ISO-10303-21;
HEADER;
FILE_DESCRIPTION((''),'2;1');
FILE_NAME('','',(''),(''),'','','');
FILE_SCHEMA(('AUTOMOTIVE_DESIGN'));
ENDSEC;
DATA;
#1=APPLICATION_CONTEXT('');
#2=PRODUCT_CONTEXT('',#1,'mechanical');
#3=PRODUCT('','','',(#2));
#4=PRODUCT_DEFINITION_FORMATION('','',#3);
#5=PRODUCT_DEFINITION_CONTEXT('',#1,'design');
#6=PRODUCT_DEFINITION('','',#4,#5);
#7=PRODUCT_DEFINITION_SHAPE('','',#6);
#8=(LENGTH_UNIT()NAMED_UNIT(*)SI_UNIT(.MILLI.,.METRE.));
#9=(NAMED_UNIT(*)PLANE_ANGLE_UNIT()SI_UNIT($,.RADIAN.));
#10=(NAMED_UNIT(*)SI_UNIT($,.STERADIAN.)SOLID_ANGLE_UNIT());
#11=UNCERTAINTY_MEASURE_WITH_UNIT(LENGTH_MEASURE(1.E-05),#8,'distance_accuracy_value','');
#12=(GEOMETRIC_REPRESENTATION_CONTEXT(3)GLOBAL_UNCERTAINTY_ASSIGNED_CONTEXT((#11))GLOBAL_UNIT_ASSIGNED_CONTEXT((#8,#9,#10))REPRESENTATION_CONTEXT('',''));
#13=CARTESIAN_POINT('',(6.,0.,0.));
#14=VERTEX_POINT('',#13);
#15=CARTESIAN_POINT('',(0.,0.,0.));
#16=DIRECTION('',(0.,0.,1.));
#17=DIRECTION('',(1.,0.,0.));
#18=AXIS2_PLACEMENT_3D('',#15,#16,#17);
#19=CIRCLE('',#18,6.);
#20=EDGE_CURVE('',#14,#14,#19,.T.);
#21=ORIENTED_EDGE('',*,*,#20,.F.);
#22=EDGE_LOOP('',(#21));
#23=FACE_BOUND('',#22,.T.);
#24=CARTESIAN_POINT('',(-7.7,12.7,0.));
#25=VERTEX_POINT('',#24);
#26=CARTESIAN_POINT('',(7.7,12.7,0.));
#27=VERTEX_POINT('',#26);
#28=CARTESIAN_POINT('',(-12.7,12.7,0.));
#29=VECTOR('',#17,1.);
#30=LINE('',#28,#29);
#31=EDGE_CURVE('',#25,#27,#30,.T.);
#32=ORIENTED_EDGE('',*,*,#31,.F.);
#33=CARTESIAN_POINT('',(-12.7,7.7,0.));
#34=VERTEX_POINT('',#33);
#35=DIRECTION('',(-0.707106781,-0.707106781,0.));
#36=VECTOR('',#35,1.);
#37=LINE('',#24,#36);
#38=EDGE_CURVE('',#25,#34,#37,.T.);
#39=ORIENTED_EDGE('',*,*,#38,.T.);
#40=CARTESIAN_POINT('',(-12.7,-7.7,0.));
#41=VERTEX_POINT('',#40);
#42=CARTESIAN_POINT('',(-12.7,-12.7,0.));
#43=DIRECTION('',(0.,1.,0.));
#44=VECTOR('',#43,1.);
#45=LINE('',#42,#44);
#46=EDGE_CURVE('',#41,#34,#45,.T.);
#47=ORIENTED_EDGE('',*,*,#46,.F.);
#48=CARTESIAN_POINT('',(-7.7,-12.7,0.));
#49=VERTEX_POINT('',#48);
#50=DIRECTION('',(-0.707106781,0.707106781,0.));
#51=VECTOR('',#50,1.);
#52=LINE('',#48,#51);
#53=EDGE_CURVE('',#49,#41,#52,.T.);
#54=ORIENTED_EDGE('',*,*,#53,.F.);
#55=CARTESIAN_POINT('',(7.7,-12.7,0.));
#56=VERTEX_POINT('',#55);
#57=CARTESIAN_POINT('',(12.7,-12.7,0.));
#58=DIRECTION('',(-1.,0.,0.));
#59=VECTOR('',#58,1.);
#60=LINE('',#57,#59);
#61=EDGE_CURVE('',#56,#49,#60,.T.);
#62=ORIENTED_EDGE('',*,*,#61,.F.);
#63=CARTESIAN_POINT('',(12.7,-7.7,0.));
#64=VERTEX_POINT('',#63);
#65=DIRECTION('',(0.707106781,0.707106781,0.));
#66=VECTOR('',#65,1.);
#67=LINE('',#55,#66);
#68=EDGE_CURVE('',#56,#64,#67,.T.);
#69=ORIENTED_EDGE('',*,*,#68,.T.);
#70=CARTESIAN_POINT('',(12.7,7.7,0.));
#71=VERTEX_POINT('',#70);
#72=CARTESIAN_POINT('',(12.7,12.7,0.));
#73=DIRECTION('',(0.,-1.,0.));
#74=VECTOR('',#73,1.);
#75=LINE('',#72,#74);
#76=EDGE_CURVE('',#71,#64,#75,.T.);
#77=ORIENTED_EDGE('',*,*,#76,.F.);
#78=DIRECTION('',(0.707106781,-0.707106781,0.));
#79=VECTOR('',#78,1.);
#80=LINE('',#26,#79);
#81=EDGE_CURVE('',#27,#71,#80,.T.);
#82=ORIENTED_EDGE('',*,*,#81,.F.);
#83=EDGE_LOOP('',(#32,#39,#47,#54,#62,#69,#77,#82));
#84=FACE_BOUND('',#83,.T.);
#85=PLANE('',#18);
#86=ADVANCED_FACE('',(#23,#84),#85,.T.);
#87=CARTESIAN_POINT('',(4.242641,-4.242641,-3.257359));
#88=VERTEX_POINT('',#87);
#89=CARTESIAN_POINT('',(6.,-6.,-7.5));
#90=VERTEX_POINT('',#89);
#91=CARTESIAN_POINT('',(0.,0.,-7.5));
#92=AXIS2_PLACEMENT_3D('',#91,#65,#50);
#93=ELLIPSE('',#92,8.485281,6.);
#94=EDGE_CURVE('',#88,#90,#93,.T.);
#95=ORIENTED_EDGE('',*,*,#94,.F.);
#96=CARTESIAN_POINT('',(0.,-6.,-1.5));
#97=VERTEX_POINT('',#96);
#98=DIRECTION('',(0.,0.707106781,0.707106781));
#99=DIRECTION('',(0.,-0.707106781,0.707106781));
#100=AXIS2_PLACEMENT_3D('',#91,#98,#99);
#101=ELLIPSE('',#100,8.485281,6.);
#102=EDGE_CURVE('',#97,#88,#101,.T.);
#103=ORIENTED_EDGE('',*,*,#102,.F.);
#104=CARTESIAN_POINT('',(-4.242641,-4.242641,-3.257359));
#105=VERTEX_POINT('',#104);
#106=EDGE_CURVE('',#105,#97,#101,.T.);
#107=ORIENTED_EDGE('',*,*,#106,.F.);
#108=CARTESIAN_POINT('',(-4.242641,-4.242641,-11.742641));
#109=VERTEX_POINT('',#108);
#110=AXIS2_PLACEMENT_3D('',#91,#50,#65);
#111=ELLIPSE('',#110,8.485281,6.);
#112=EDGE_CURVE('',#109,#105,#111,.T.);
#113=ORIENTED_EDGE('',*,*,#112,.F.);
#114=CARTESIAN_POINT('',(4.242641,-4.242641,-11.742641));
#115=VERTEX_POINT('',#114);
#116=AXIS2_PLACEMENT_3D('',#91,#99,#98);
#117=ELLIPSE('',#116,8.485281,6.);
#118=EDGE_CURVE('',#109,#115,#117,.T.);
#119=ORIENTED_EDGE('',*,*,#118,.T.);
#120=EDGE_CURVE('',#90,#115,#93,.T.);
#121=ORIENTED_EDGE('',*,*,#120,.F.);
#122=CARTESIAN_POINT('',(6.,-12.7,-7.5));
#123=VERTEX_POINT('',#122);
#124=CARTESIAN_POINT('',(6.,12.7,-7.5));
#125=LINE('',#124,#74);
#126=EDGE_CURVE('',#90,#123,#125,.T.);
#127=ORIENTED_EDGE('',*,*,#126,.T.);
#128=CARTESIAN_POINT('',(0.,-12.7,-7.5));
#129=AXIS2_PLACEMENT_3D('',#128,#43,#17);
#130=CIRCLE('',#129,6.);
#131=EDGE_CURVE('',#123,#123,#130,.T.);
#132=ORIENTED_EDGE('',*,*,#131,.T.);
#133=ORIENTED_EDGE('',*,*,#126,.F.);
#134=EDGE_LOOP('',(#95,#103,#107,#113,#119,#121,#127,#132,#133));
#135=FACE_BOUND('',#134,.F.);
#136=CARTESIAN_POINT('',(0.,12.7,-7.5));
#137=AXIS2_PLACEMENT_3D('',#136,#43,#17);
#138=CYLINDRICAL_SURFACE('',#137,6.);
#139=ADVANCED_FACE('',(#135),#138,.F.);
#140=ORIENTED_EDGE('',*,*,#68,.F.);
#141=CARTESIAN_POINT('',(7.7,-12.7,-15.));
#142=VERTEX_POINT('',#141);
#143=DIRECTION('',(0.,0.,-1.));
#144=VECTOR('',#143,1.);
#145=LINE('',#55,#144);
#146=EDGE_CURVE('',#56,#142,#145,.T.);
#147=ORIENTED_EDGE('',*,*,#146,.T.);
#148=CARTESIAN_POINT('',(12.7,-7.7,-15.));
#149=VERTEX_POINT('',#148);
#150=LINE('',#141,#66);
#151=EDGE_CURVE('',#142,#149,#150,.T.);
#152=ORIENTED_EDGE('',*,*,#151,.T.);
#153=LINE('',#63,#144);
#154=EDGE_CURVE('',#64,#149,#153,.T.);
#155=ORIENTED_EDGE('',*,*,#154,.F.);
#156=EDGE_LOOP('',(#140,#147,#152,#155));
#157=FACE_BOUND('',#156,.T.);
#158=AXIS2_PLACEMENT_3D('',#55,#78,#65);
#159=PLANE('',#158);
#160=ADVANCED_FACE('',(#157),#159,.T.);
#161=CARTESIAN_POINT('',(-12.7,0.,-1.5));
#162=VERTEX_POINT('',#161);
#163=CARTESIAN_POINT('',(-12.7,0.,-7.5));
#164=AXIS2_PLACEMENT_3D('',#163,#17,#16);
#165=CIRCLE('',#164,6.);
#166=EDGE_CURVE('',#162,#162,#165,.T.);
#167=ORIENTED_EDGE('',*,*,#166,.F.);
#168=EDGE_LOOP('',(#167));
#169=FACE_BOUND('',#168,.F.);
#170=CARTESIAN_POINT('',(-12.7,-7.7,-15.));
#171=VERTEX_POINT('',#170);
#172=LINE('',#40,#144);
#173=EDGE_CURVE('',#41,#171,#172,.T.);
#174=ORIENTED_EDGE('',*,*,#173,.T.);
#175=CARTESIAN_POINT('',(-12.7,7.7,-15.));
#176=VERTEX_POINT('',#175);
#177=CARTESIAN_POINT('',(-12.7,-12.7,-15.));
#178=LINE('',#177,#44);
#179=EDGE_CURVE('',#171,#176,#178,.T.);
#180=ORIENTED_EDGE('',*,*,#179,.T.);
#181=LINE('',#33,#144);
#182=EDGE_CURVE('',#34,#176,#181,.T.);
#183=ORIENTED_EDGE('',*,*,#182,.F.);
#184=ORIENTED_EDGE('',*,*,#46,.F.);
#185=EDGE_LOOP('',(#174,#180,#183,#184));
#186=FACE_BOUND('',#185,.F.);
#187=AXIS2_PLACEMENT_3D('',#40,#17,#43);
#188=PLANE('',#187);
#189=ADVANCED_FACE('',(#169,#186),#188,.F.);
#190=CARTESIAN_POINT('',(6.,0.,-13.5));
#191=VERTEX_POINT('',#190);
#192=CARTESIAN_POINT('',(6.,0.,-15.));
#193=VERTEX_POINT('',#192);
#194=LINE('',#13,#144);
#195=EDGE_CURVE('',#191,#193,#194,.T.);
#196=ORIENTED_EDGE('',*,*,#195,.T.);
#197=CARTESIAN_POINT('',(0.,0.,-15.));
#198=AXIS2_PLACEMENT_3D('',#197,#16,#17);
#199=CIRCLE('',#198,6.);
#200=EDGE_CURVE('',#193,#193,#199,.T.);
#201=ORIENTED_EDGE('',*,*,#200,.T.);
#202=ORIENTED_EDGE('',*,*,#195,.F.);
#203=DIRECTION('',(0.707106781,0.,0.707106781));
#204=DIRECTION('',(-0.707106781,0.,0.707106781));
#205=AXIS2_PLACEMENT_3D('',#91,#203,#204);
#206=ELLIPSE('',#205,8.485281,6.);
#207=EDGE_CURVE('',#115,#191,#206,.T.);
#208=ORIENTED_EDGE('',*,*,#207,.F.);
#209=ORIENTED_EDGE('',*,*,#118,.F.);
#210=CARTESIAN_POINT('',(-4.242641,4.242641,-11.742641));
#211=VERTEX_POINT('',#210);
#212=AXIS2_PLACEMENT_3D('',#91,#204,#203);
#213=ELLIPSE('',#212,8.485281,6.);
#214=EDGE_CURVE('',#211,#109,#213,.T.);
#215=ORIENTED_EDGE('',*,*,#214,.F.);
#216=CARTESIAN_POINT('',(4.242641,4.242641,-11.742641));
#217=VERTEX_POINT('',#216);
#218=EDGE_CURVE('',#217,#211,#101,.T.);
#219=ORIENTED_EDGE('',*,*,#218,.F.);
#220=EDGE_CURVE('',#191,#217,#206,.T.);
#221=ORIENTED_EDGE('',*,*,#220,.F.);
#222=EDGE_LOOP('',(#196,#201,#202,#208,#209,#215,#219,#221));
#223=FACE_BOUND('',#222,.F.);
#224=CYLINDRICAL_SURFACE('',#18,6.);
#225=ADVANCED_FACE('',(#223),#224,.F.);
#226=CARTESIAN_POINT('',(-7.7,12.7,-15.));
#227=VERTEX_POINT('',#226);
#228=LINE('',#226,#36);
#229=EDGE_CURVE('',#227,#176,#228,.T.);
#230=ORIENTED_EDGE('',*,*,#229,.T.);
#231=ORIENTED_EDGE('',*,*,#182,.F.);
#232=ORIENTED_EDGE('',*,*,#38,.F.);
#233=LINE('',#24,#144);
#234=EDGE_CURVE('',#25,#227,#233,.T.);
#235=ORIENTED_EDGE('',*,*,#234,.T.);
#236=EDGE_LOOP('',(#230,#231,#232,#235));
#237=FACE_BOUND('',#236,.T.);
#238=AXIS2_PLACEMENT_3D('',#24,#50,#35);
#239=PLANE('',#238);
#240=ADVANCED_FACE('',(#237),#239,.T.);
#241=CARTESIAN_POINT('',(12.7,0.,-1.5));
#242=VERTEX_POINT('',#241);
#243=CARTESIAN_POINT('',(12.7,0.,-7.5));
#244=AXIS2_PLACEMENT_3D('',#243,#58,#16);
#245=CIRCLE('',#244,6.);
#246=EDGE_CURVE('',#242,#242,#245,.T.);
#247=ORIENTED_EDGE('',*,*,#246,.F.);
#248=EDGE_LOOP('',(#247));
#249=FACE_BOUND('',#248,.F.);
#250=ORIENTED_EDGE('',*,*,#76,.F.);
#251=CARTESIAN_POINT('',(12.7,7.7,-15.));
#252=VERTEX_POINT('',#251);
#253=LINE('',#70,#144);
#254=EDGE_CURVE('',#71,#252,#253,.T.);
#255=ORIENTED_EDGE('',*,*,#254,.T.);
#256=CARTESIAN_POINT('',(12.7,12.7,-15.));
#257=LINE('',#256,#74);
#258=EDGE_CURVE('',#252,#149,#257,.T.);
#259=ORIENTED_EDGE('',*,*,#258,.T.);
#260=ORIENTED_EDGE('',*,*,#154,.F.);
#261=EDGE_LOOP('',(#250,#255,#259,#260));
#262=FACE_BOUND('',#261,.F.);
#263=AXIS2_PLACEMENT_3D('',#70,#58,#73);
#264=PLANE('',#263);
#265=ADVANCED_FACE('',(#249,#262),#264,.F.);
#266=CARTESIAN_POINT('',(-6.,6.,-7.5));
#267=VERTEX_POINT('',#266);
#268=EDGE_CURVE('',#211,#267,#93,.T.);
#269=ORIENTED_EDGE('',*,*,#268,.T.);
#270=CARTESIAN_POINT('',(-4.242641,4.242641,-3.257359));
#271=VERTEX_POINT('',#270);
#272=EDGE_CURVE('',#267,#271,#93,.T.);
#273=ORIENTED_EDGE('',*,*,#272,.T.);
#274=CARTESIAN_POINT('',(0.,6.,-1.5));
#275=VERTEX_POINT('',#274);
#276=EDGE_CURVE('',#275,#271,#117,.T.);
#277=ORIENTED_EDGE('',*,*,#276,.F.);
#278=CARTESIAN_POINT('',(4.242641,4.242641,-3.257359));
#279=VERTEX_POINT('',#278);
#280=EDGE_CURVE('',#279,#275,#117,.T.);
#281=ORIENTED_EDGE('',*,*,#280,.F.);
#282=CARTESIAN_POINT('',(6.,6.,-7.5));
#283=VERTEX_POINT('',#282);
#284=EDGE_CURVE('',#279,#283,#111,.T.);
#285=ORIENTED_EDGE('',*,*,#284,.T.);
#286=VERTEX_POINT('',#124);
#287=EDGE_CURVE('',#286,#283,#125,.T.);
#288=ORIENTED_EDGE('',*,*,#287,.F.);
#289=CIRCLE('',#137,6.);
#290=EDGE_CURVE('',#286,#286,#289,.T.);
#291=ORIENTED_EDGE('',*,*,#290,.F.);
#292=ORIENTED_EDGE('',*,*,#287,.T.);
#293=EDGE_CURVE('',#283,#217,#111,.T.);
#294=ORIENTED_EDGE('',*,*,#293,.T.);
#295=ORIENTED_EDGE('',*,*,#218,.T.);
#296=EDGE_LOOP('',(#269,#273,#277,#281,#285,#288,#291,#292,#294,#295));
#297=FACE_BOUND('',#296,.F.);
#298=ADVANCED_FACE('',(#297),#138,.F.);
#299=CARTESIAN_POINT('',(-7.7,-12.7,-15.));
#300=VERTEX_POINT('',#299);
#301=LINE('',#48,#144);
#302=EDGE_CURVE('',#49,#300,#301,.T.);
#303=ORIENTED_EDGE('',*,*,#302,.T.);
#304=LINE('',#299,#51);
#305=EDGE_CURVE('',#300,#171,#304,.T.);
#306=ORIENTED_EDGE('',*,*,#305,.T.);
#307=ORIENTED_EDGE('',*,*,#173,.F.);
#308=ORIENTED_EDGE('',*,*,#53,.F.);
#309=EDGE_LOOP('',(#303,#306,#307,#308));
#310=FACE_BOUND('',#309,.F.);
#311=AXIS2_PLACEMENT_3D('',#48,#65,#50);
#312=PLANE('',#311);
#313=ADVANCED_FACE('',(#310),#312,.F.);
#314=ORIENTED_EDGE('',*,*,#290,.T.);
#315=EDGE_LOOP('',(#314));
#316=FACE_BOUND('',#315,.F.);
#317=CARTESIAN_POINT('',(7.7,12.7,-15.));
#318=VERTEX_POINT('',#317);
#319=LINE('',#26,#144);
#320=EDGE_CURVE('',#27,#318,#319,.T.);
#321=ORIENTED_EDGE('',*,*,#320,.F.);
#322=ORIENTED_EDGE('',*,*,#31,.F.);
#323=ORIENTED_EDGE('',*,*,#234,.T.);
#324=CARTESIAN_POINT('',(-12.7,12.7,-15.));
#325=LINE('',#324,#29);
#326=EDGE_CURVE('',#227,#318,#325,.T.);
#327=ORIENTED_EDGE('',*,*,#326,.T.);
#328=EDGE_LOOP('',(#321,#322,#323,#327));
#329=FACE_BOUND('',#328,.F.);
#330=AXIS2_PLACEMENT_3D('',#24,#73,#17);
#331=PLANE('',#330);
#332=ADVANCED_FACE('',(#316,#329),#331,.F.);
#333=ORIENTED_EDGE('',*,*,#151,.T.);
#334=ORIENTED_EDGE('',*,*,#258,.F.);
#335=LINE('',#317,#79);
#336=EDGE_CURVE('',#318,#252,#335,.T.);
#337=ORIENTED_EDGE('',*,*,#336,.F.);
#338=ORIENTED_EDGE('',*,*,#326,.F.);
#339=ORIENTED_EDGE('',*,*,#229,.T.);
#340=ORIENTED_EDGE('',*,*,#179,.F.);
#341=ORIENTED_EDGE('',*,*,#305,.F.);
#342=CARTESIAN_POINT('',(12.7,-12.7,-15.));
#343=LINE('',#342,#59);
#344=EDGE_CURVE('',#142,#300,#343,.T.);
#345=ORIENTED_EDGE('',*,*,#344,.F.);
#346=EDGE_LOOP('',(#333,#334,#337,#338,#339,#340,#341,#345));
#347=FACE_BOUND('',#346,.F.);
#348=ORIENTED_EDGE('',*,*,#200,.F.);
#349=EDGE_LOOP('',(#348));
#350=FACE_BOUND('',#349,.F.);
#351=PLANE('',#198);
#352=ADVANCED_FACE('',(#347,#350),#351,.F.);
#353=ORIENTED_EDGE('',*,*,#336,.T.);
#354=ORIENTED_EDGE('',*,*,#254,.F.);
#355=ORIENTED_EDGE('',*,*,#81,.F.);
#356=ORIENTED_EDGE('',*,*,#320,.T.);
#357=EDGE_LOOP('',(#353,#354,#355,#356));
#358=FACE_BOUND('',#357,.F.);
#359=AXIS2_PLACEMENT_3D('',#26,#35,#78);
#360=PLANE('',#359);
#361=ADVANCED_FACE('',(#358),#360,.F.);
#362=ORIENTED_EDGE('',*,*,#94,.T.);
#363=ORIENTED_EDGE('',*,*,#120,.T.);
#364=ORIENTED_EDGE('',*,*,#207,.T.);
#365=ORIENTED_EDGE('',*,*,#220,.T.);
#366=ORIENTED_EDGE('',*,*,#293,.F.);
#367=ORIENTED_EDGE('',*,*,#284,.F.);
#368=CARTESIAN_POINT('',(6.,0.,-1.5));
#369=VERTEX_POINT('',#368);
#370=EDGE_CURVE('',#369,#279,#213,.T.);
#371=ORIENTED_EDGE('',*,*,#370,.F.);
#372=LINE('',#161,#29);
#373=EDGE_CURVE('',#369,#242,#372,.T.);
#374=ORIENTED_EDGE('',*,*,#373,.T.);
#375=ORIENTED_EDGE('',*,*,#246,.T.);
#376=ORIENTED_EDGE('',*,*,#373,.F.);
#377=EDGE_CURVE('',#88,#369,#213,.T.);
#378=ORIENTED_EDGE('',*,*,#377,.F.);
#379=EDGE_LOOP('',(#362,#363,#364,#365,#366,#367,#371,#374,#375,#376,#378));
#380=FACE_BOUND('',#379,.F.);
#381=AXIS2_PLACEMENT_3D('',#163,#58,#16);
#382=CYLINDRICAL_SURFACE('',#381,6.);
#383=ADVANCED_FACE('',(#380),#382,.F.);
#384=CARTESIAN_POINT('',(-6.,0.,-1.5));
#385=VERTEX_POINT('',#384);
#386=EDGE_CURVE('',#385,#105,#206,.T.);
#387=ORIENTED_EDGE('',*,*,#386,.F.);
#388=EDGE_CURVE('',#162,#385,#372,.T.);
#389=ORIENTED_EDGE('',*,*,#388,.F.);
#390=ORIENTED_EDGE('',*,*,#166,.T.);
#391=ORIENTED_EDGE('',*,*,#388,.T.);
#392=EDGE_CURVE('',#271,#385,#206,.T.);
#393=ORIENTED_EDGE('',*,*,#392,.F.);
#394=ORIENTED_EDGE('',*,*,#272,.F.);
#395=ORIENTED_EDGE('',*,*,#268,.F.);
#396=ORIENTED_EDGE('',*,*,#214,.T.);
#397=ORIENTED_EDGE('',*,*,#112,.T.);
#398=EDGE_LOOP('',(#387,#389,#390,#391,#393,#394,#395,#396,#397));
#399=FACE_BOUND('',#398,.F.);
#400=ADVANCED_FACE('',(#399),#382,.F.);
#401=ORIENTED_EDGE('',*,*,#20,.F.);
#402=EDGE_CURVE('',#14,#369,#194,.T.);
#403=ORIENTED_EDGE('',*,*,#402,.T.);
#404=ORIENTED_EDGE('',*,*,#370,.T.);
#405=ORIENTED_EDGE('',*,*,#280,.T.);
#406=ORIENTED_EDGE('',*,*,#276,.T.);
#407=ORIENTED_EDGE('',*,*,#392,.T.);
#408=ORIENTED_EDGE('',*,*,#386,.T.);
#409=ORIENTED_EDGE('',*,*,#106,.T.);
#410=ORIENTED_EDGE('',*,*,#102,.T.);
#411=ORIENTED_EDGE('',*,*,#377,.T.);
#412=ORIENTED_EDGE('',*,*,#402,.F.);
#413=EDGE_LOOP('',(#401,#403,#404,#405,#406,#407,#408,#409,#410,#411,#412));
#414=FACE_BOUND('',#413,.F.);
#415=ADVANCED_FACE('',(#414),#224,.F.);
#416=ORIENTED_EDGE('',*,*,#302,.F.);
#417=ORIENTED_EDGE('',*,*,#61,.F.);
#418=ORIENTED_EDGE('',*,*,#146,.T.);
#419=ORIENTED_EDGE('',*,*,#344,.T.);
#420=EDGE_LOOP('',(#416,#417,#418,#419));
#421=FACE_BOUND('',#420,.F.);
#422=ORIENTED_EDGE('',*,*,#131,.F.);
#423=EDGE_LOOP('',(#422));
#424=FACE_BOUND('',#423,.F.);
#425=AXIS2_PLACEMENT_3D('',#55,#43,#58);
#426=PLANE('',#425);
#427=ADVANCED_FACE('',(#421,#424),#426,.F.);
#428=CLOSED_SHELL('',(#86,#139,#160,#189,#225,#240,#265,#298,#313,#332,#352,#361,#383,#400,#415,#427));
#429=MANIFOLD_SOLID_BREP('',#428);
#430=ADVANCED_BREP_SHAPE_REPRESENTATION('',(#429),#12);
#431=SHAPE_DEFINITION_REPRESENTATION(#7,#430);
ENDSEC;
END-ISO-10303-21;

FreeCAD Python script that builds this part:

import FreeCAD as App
import Part
import Sketcher
from FreeCAD import Vector


def add_polygon(sketch, points):
    """Adds a closed chain of lines whose ends are joined by coincident constraints."""
    first, n = sketch.GeometryCount, len(points)
    for a, b in zip(points, points[1:] + points[:1]):
        sketch.addGeometry(Part.LineSegment(App.Vector(*a, 0), App.Vector(*b, 0)), False)
    for i in range(n):
        sketch.addConstraint(Sketcher.Constraint("Coincident", first + i, 2, first + (i + 1) % n, 1))

doc = App.newDocument("Part")
params = doc.addObject("Spreadsheet::Sheet", "Params")
for row, (alias, value) in enumerate([
    ("sketch1_diameter", "12 mm"),
    ("pad1_length", "15 mm"),
    ("sketch2_diameter", "12 mm"),
    ("sketch3_diameter", "12 mm"),
], start=1):
    params.set(f"A{row}", alias)
    params.set(f"B{row}", "=" + value)
    params.setAlias(f"B{row}", alias)

body = doc.addObject("PartDesign::Body", "Body")

# Sketch on XY plane
sketch1 = body.newObject("Sketcher::SketchObject", "Sketch")
sketch1.AttachmentSupport = (doc.getObject("XY_Plane"), [""])
sketch1.MapMode = "FlatFace"
add_polygon(sketch1, [(8, 13), (-8, 13), (-13, 8), (-13, -8), (-8, -13), (8, -13), (13, -8), (13, 8)])  # lines 0-7
sketch1.addGeometry(Part.Circle(Vector(0, 0, 0), Vector(0, 0, 1), 6), False)  # 8
sketch1.addConstraint([
    Sketcher.Constraint("Horizontal", 0),
    Sketcher.Constraint("Vertical", 2),
    Sketcher.Constraint("Horizontal", 4),
    Sketcher.Constraint("Vertical", 6),
    Sketcher.Constraint("Coincident", 8, 3, -1, 1),
    Sketcher.Constraint("Symmetric", 0, 2, 4, 2, -1, 1),
    Sketcher.Constraint("Symmetric", 1, 2, 5, 2, -1, 1),
    Sketcher.Constraint("Perpendicular", 1, 3),
    Sketcher.Constraint("Perpendicular", 5, 7),
    Sketcher.Constraint("Horizontal", 2, 2, 5, 2),
    Sketcher.Constraint("Horizontal", 1, 2, 6, 2),
    Sketcher.Constraint("Vertical", 0, 2, 3, 2),
    Sketcher.Constraint("Equal", 4, 2),
    Sketcher.Constraint("Diameter", 8, 12.0),
    Sketcher.Constraint("DistanceX", 1, 2, 0, 2, 5.0),
    Sketcher.Constraint("DistanceY", -1, 1, 0, 2, 12.7),
])
sketch1.setExpression("Constraints[21]", "Params.sketch1_diameter")
pad1 = body.newObject("PartDesign::Pad", "Pad")
pad1.Profile = sketch1
pad1.setExpression("Length", "Params.pad1_length")
pad1.Reversed = True

# Sketch on XZ plane
sketch2 = body.newObject("Sketcher::SketchObject", "Sketch001")
sketch2.AttachmentSupport = (doc.getObject("XZ_Plane"), [""])
sketch2.MapMode = "FlatFace"
sketch2.AttachmentOffset = App.Placement(Vector(0, 0, -12.7), App.Rotation())
sketch2.addGeometry(Part.Circle(Vector(0, -8, 0), Vector(0, 0, 1), 6), False)
sketch2.addConstraint([
    Sketcher.Constraint("PointOnObject", 0, 3, -2),
    Sketcher.Constraint("Diameter", 0, 12.0),
    Sketcher.Constraint("DistanceY", 0, 3, -1, 1, 7.5),
])
sketch2.setExpression("Constraints[1]", "Params.sketch2_diameter")
pocket1 = body.newObject("PartDesign::Pocket", "Pocket")
pocket1.Profile = sketch2
pocket1.Type = "ThroughAll"
pocket1.Reversed = True

# Sketch on YZ plane
sketch3 = body.newObject("Sketcher::SketchObject", "Sketch002")
sketch3.AttachmentSupport = (doc.getObject("YZ_Plane"), [""])
sketch3.MapMode = "FlatFace"
sketch3.AttachmentOffset = App.Placement(Vector(0, 0, -12.7), App.Rotation())
sketch3.addGeometry(Part.Circle(Vector(0, -8, 0), Vector(0, 0, 1), 6), False)
sketch3.addConstraint([
    Sketcher.Constraint("PointOnObject", 0, 3, -2),
    Sketcher.Constraint("Diameter", 0, 12.0),
    Sketcher.Constraint("DistanceY", 0, 3, -1, 1, 7.5),
])
sketch3.setExpression("Constraints[1]", "Params.sketch3_diameter")
pocket2 = body.newObject("PartDesign::Pocket", "Pocket001")
pocket2.Profile = sketch3
pocket2.Type = "ThroughAll"
pocket2.Reversed = True

doc.recompute()
